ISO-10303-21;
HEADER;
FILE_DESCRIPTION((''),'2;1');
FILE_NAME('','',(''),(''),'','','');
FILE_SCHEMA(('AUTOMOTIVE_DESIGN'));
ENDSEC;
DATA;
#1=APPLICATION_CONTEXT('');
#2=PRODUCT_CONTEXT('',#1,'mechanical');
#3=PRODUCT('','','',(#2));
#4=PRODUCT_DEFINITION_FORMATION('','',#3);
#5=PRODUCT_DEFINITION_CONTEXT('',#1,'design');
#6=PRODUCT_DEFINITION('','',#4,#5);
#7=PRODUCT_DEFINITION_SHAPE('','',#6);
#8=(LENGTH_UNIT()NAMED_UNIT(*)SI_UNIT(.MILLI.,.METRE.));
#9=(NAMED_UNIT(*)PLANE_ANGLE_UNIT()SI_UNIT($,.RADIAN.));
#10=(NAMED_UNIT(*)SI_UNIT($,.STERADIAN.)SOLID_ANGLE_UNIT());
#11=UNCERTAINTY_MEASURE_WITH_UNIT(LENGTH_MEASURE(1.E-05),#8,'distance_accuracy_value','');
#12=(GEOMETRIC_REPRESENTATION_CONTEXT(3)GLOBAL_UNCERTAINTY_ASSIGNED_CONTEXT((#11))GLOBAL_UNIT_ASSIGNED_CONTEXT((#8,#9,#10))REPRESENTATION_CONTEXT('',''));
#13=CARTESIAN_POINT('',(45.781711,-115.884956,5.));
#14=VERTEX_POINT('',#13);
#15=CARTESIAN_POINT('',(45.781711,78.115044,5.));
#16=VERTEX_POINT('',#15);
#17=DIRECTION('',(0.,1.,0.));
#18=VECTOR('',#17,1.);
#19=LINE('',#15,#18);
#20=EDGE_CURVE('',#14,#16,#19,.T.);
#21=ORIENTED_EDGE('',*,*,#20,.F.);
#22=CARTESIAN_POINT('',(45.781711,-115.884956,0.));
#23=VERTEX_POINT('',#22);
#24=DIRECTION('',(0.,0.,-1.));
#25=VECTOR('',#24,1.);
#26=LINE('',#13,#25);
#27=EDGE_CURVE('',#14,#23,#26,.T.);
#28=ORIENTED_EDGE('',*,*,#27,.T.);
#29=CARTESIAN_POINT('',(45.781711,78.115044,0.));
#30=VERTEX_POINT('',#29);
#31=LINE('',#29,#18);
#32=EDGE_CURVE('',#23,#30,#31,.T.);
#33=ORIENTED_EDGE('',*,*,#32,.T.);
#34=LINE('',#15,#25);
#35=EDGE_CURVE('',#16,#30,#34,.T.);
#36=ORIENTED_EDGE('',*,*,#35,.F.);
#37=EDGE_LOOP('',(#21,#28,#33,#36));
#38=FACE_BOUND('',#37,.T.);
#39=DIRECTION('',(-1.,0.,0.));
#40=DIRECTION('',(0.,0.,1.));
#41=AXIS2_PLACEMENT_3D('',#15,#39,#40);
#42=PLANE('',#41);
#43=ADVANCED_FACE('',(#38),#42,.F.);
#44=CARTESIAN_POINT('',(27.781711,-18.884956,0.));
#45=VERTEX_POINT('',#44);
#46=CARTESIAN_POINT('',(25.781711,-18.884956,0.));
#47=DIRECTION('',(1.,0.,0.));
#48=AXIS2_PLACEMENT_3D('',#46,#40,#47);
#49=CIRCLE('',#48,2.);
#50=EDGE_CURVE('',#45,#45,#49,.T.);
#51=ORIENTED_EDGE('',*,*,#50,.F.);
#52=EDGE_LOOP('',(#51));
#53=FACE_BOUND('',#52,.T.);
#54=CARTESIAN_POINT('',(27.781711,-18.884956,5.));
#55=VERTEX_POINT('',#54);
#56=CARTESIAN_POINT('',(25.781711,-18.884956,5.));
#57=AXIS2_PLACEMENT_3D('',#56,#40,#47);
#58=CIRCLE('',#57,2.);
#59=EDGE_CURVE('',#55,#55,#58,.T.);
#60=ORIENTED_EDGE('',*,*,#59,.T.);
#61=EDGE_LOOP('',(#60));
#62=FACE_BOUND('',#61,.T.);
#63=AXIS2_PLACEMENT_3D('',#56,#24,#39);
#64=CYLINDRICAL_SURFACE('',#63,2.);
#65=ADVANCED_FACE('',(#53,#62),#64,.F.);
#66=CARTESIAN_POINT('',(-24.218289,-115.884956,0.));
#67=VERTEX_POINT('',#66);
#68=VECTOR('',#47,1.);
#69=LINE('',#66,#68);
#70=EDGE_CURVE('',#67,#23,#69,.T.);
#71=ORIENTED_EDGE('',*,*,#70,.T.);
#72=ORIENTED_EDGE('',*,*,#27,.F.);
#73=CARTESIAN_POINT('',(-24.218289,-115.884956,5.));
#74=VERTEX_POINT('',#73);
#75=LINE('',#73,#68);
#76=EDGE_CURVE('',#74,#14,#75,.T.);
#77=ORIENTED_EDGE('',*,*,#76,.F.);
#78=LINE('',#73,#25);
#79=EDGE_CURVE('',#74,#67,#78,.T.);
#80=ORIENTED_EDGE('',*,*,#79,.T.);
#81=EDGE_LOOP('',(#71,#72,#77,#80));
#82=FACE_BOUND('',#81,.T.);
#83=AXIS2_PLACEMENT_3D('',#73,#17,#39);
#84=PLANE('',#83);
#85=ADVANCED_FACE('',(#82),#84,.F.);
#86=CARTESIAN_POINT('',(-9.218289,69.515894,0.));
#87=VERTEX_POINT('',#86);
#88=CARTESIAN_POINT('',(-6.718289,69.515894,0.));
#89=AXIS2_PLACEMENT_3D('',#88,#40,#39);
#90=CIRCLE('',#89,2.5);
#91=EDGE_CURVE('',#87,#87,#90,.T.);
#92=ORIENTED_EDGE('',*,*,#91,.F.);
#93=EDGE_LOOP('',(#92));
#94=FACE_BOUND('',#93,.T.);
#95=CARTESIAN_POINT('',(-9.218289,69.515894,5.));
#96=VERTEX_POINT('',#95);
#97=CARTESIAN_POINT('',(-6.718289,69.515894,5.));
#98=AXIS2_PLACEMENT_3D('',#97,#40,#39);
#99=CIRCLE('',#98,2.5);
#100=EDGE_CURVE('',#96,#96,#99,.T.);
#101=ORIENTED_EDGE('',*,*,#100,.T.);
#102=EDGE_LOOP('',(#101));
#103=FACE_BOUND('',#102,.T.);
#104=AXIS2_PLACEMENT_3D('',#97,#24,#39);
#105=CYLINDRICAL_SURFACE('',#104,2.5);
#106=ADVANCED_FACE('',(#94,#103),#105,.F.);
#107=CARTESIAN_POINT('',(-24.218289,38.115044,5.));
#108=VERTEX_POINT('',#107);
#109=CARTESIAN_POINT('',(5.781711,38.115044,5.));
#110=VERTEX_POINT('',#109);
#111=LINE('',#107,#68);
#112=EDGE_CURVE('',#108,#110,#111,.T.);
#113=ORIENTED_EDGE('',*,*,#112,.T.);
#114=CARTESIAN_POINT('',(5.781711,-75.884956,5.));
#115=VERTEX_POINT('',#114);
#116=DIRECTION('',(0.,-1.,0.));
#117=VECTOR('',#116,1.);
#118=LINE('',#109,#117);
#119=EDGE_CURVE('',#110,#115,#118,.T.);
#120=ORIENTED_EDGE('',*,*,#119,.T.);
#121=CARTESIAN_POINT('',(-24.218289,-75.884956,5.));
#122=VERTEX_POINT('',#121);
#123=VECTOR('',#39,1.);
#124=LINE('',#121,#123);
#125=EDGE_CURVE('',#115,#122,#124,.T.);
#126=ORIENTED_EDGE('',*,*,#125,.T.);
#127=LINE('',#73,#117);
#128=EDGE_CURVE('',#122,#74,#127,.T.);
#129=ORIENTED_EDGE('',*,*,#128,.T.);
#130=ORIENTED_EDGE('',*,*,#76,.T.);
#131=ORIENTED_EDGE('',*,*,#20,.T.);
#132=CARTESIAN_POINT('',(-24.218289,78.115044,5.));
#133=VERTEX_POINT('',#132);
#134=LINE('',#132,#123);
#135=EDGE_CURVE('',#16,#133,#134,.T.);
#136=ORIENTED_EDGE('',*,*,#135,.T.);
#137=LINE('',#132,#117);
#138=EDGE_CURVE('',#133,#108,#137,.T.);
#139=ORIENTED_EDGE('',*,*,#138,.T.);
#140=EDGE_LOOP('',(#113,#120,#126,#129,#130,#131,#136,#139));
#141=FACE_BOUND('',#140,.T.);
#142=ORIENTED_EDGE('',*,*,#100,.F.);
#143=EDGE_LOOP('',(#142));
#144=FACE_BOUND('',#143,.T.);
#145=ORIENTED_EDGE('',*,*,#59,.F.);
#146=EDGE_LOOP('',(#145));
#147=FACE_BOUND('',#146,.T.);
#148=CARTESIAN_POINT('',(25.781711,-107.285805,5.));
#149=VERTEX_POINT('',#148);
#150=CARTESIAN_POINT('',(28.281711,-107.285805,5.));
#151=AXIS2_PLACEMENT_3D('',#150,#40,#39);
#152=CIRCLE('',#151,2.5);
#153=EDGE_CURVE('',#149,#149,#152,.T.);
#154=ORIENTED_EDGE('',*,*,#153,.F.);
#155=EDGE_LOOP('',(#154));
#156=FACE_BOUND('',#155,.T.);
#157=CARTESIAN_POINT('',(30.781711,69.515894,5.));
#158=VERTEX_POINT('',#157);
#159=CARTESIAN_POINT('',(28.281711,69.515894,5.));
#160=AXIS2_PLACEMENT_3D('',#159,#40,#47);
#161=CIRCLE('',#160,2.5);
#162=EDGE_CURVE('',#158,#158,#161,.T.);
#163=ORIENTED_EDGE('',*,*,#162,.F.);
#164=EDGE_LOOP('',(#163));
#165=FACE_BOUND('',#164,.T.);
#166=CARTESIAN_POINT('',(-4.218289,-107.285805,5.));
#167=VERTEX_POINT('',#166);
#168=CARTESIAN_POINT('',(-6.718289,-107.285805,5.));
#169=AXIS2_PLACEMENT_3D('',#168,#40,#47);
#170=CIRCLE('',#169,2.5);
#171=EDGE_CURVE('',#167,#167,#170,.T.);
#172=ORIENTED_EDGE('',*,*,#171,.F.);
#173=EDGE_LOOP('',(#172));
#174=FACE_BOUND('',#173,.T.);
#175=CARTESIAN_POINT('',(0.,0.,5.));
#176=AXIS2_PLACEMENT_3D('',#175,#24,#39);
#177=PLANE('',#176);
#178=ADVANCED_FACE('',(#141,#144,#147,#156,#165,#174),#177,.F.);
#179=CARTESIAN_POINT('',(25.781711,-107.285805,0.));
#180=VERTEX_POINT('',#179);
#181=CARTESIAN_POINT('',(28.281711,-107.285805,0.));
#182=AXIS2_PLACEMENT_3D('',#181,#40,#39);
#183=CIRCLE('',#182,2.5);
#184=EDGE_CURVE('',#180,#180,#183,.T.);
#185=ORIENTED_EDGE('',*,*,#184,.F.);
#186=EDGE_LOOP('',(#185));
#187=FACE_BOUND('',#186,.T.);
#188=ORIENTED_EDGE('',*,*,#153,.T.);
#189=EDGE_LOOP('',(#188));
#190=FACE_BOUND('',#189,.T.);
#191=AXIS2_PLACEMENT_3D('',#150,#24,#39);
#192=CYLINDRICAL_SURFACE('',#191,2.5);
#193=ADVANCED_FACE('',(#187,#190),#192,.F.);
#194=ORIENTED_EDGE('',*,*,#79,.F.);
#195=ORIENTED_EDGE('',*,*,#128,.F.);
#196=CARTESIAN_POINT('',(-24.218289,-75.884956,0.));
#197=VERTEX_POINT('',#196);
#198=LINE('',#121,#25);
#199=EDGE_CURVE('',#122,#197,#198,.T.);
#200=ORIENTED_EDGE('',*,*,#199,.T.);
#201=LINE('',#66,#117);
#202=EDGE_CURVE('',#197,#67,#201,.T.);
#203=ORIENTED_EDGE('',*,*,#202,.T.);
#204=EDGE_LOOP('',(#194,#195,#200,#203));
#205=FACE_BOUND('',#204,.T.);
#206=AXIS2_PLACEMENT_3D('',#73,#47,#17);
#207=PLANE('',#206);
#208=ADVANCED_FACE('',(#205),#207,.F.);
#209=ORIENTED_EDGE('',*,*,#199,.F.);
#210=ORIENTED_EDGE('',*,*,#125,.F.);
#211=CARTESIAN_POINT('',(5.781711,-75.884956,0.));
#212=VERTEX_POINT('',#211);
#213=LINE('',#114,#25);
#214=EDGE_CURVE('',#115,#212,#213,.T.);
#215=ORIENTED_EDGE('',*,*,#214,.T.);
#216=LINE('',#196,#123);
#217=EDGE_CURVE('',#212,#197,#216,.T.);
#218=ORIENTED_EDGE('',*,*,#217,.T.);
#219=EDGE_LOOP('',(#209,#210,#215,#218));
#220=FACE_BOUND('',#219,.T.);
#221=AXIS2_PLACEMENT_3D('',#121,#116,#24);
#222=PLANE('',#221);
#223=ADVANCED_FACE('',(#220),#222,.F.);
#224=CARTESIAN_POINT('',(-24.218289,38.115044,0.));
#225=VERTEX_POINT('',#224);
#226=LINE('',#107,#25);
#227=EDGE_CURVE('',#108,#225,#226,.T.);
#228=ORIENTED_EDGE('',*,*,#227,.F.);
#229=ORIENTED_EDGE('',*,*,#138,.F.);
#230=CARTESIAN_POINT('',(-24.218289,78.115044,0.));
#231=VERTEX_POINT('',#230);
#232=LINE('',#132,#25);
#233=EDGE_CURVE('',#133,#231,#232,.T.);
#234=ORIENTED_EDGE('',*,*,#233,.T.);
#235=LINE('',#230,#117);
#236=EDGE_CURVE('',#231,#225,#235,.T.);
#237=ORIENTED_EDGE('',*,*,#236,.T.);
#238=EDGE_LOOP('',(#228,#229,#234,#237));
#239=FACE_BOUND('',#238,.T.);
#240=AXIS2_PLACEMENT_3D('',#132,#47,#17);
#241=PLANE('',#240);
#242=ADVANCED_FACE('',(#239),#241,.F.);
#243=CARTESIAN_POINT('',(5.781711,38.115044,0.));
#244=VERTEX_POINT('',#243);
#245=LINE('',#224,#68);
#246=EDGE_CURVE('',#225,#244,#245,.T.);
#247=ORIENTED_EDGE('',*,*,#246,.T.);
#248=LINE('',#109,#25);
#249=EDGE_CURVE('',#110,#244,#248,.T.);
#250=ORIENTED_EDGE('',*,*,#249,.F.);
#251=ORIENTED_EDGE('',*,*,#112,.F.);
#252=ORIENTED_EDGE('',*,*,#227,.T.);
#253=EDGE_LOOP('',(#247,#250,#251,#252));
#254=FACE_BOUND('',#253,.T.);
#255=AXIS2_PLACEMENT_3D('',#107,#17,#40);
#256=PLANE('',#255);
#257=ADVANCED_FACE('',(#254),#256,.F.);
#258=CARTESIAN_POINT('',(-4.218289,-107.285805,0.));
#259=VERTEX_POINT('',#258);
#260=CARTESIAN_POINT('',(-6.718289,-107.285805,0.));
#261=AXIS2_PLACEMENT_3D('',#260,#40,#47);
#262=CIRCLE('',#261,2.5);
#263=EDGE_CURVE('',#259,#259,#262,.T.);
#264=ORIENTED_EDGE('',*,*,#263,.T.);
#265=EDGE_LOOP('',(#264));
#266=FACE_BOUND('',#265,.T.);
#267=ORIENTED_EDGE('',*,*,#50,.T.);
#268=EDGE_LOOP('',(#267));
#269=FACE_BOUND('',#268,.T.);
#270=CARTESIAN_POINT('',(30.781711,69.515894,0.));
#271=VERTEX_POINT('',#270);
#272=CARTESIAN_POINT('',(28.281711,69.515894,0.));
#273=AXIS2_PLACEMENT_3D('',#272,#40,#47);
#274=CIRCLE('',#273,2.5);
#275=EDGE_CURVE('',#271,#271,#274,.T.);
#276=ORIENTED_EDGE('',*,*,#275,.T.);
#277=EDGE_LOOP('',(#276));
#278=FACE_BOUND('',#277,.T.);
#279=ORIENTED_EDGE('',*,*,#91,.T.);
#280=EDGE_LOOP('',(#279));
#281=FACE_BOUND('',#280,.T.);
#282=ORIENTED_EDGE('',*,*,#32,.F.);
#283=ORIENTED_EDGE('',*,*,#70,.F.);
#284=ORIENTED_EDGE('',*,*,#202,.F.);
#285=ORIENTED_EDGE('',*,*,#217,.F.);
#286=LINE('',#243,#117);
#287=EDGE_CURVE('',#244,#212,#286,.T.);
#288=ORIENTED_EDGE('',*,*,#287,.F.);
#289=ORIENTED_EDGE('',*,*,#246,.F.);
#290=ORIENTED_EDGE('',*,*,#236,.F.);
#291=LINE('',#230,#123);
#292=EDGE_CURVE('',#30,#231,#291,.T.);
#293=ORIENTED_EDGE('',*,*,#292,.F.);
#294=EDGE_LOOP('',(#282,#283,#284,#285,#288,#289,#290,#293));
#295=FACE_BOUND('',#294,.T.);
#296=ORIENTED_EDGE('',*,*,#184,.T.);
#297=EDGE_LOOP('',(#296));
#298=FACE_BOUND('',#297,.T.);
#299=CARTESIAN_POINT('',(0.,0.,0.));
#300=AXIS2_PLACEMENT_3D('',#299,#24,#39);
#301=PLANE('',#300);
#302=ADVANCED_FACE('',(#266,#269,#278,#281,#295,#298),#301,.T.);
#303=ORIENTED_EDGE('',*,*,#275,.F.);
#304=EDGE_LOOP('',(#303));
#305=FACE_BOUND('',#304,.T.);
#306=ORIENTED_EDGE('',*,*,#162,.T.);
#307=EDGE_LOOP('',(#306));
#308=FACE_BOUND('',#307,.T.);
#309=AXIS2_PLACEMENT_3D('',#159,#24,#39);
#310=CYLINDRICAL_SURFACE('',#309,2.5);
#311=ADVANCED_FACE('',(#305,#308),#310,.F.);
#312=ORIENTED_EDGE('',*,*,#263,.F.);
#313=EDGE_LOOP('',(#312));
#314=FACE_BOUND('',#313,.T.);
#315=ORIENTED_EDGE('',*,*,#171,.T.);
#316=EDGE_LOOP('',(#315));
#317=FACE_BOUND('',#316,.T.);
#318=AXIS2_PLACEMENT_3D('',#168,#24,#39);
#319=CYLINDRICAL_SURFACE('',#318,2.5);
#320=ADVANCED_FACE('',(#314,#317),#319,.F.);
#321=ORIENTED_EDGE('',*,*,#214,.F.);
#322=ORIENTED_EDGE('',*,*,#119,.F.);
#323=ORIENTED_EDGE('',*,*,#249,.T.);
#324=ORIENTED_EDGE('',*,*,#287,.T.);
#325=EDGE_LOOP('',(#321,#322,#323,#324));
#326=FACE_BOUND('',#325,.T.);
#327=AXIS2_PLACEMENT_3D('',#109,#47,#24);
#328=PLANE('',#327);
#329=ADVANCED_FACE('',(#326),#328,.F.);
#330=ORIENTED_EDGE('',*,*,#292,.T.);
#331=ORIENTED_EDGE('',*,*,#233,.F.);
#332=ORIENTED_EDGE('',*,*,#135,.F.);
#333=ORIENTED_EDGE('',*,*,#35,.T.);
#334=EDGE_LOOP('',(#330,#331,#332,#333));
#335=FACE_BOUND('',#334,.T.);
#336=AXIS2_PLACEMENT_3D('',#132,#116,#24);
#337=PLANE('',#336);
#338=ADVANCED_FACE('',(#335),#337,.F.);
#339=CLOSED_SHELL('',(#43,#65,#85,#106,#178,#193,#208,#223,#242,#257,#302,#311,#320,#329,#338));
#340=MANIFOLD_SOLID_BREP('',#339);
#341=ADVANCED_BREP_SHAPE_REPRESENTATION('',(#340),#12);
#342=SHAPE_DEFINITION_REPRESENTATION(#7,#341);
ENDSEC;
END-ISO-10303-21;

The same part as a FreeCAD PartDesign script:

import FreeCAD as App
import Part
import Sketcher

V = App.Vector

doc = App.newDocument("Part")
body = doc.addObject("PartDesign::Body", "Body")

sketch1 = body.newObject("Sketcher::SketchObject", "Sketch")
sketch1.AttachmentSupport = (doc.getObject("XY_Plane"), [""])
sketch1.MapMode = "FlatFace"
sketch1.addGeometry(Part.LineSegment(V(-24.2, 78.1, 0), V(-24.2, 38.1, 0)), False)
sketch1.addGeometry(Part.LineSegment(V(-24.2, 38.1, 0), V(5.8, 38.1, 0)), False)
sketch1.addGeometry(Part.LineSegment(V(5.8, 38.1, 0), V(5.8, -75.9, 0)), False)
sketch1.addGeometry(Part.LineSegment(V(5.8, -75.9, 0), V(-24.2, -75.9, 0)), False)
sketch1.addGeometry(Part.LineSegment(V(-24.2, -75.9, 0), V(-24.2, -115.9, 0)), False)
sketch1.addGeometry(Part.LineSegment(V(-24.2, -115.9, 0), V(45.8, -115.9, 0)), False)
sketch1.addGeometry(Part.LineSegment(V(45.8, -115.9, 0), V(45.8, 78.1, 0)), False)
sketch1.addGeometry(Part.LineSegment(V(45.8, 78.1, 0), V(-24.2, 78.1, 0)), False)
sketch1.addGeometry(Part.Circle(V(-6.7, -107.3, 0), V(0, 0, 1), 2.5), False)
sketch1.addGeometry(Part.Circle(V(28.3, -107.3, 0), V(0, 0, 1), 2.5), False)
sketch1.addGeometry(Part.Circle(V(-6.7, 69.5, 0), V(0, 0, 1), 2.5), False)
sketch1.addGeometry(Part.Circle(V(25.8, -18.9, 0), V(0, 0, 1), 2), False)
sketch1.addGeometry(Part.Circle(V(28.3, 69.5, 0), V(0, 0, 1), 2.5), False)
sketch1.addConstraint(Sketcher.Constraint("Coincident", 0, 2, 1, 1))
sketch1.addConstraint(Sketcher.Constraint("Coincident", 1, 2, 2, 1))
sketch1.addConstraint(Sketcher.Constraint("Coincident", 2, 2, 3, 1))
sketch1.addConstraint(Sketcher.Constraint("Coincident", 3, 2, 4, 1))
sketch1.addConstraint(Sketcher.Constraint("Coincident", 4, 2, 5, 1))
sketch1.addConstraint(Sketcher.Constraint("Coincident", 5, 2, 6, 1))
sketch1.addConstraint(Sketcher.Constraint("Coincident", 6, 2, 7, 1))
sketch1.addConstraint(Sketcher.Constraint("Coincident", 7, 2, 0, 1))
sketch1.addConstraint(Sketcher.Constraint("Vertical", 0))
sketch1.addConstraint(Sketcher.Constraint("Horizontal", 1))
sketch1.addConstraint(Sketcher.Constraint("Vertical", 2))
sketch1.addConstraint(Sketcher.Constraint("Horizontal", 3))
sketch1.addConstraint(Sketcher.Constraint("Vertical", 4))
sketch1.addConstraint(Sketcher.Constraint("Horizontal", 5))
sketch1.addConstraint(Sketcher.Constraint("Vertical", 6))
sketch1.addConstraint(Sketcher.Constraint("Horizontal", 7))
sketch1.addConstraint(Sketcher.Constraint("Equal", 8, 9))
sketch1.addConstraint(Sketcher.Constraint("Equal", 9, 10))
sketch1.addConstraint(Sketcher.Constraint("Equal", 10, 12))
sketch1.addConstraint(Sketcher.Constraint("Horizontal", 8, 3, 9, 3))
sketch1.addConstraint(Sketcher.Constraint("Horizontal", 10, 3, 12, 3))
sketch1.addConstraint(Sketcher.Constraint("Vertical", 8, 3, 10, 3))
sketch1.addConstraint(Sketcher.Constraint("Vertical", 9, 3, 12, 3))
sketch1.addConstraint(Sketcher.Constraint("Vertical", 0, 2, 3, 2))
sketch1.addConstraint(Sketcher.Constraint("Equal", 0, 4))
sketch1.addConstraint(Sketcher.Constraint("Diameter", 8, 5.0))
sketch1.addConstraint(Sketcher.Constraint("Diameter", 11, 4.0))
sketch1.addConstraint(Sketcher.Constraint("DistanceX", 1, 1, 1, 2, 30.0))
sketch1.addConstraint(Sketcher.Constraint("DistanceX", 5, 1, 5, 2, 70.0))
sketch1.addConstraint(Sketcher.Constraint("DistanceY", 0, 2, 0, 1, 40.0))
sketch1.addConstraint(Sketcher.Constraint("DistanceY", 2, 2, 2, 1, 114.0))
sketch1.addConstraint(Sketcher.Constraint("DistanceX", 8, 3, 9, 3, 35.0))
sketch1.addConstraint(Sketcher.Constraint("DistanceX", 0, 2, 11, 3, 50.0))
sketch1.addConstraint(Sketcher.Constraint("DistanceY", 11, 3, 0, 2, 57.0))
sketch1.addConstraint(Sketcher.Constraint("DistanceX", 11, 3, 9, 3, 2.5))
sketch1.addConstraint(Sketcher.Constraint("DistanceY", 8, 3, 10, 3, 176.801699))
sketch1.addConstraint(Sketcher.Constraint("DistanceX", 8, 3, -1, 1, 6.718289))
sketch1.addConstraint(Sketcher.Constraint("DistanceY", 9, 3, 11, 3, 88.400849))
sketch1.addConstraint(Sketcher.Constraint("DistanceY", 8, 3, -1, 1, 107.285805))
pad1 = body.newObject("PartDesign::Pad", "Pad")
pad1.Profile = sketch1
pad1.Length = 5

doc.recompute()
